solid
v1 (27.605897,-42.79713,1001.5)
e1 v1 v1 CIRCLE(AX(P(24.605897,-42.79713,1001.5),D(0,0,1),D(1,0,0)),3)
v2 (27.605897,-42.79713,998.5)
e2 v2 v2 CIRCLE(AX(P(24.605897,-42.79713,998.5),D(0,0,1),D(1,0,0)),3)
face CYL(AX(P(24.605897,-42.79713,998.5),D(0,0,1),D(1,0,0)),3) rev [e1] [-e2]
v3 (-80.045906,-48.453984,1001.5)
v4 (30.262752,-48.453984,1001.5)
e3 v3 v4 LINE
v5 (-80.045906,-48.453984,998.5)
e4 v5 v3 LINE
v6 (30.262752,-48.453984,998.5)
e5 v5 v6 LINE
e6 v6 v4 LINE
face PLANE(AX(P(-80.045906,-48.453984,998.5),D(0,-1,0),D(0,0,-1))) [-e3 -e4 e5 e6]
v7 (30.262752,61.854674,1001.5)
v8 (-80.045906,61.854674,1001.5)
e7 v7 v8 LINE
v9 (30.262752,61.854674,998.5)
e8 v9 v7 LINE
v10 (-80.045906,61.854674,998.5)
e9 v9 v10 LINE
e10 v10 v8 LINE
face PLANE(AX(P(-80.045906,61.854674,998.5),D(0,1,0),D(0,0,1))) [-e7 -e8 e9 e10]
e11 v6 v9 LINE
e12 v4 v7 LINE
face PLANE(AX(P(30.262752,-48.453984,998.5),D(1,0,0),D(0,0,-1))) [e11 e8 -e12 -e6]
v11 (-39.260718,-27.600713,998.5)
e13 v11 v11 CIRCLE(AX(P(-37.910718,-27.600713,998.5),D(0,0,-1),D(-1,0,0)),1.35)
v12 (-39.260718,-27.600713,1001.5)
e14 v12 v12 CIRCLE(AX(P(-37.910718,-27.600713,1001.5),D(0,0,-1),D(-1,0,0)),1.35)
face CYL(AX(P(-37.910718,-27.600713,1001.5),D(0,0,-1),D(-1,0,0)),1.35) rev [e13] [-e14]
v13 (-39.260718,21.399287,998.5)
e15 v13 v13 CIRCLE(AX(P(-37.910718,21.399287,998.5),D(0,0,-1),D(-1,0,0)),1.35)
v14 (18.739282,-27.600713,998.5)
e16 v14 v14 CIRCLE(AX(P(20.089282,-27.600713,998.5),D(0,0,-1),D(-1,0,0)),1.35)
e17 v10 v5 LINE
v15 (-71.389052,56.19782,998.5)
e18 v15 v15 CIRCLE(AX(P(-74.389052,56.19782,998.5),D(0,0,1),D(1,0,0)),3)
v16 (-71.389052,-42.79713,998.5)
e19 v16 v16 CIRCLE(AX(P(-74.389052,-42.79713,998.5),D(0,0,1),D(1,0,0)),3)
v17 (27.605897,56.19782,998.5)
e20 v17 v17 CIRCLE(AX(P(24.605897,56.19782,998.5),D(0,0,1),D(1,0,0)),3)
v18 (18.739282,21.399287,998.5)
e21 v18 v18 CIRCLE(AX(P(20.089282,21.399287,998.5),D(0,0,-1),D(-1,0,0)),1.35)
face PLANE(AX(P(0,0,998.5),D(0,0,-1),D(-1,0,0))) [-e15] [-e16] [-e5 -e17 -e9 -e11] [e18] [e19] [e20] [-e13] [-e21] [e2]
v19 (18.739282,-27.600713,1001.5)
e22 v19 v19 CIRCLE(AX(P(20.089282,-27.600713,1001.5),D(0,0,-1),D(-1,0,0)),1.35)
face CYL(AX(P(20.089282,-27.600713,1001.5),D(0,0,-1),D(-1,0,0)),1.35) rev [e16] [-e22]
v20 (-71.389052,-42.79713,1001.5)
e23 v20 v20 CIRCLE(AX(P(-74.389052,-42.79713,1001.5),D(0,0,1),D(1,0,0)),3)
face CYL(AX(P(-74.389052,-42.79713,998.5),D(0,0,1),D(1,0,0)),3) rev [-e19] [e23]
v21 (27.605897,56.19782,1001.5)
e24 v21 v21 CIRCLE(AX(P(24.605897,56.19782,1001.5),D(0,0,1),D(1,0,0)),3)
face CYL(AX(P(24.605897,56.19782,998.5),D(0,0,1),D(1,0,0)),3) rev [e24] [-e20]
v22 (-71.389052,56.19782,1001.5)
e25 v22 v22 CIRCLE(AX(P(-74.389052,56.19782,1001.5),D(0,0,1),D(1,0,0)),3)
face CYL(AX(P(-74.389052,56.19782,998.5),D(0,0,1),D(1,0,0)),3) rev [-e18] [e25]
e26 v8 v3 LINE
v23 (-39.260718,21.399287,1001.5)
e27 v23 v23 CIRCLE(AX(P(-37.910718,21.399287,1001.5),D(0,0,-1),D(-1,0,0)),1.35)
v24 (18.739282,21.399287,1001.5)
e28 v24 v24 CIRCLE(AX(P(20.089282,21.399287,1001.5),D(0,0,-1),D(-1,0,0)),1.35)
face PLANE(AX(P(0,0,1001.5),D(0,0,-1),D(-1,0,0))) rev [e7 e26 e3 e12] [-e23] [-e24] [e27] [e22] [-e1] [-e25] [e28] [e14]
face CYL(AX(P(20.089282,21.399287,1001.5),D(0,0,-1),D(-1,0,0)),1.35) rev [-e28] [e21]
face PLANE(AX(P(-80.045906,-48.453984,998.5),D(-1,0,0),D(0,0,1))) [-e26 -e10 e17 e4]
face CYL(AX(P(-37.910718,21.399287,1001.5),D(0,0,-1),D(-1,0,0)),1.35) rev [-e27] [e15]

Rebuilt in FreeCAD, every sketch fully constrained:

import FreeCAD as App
import Part
import Sketcher
from FreeCAD import Vector


def add_polygon(sketch, points):
    """Adds a closed chain of lines whose ends are joined by coincident constraints."""
    first, n = sketch.GeometryCount, len(points)
    for a, b in zip(points, points[1:] + points[:1]):
        sketch.addGeometry(Part.LineSegment(App.Vector(*a, 0), App.Vector(*b, 0)), False)
    for i in range(n):
        sketch.addConstraint(Sketcher.Constraint("Coincident", first + i, 2, first + (i + 1) % n, 1))

doc = App.newDocument("Part")
body = doc.addObject("PartDesign::Body", "Body")

sketch1 = doc.addObject("Sketcher::SketchObject", "Sketch")
body.addObject(sketch1)
sketch1.AttachmentSupport = (doc.XY_Plane, [""])
sketch1.MapMode = "FlatFace"
sketch1.AttachmentOffset = App.Placement(Vector(0, 0, 1001.5), App.Rotation())
add_polygon(sketch1, [(-80, 61.9), (-80, -48.5), (30.3, -48.5), (30.3, 61.9)])
sketch1.addGeometry(Part.Circle(Vector(-74.4, -42.8, 0), Vector(0, 0, 1), 3), False)
sketch1.addGeometry(Part.Circle(Vector(24.6, -42.8, 0), Vector(0, 0, 1), 3), False)
sketch1.addGeometry(Part.Circle(Vector(-74.4, 56.2, 0), Vector(0, 0, 1), 3), False)
sketch1.addGeometry(Part.Circle(Vector(24.6, 56.2, 0), Vector(0, 0, 1), 3), False)
sketch1.addConstraint([
    Sketcher.Constraint("Vertical", 0),
    Sketcher.Constraint("Horizontal", 1),
    Sketcher.Constraint("Vertical", 2),
    Sketcher.Constraint("Horizontal", 3),
    Sketcher.Constraint("Equal", 4, 5),
    Sketcher.Constraint("Equal", 5, 6),
    Sketcher.Constraint("Equal", 6, 7),
    Sketcher.Constraint("Horizontal", 4, 3, 5, 3),
    Sketcher.Constraint("Horizontal", 6, 3, 7, 3),
    Sketcher.Constraint("Vertical", 4, 3, 6, 3),
    Sketcher.Constraint("Vertical", 5, 3, 7, 3),
    Sketcher.Constraint("Equal", 3, 0),
    Sketcher.Constraint("Diameter", 4, 6.0),
    Sketcher.Constraint("DistanceX", 1, 1, 1, 2, 110.308658),
    Sketcher.Constraint("DistanceX", 4, 3, -1, 1, 74.389052),
    Sketcher.Constraint("DistanceY", 4, 3, -1, 1, 42.79713),
    Sketcher.Constraint("DistanceY", -1, 1, 6, 3, 56.19782),
    Sketcher.Constraint("DistanceX", -1, 1, 1, 2, 30.262752),
    Sketcher.Constraint("DistanceX", 4, 3, 5, 3, 98.994949),
    Sketcher.Constraint("DistanceY", 0, 2, -1, 1, 48.453984),
])
pad1 = doc.addObject("PartDesign::Pad", "Pad")
body.addObject(pad1)
pad1.Profile = sketch1
pad1.Length = 3
pad1.Reversed = True

sketch2 = doc.addObject("Sketcher::SketchObject", "Sketch001")
body.addObject(sketch2)
sketch2.AttachmentSupport = (doc.XY_Plane, [""])
sketch2.MapMode = "FlatFace"
sketch2.AttachmentOffset = App.Placement(Vector(0, 0, 998.5), App.Rotation())
sketch2.addGeometry([
    Part.Circle(Vector(-37.9, 21.4, 0), Vector(0, 0, 1), 1.4),
    Part.Circle(Vector(-37.9, -27.6, 0), Vector(0, 0, 1), 1.4),
    Part.Circle(Vector(20.1, -27.6, 0), Vector(0, 0, 1), 1.4),
    Part.Circle(Vector(20.1, 21.4, 0), Vector(0, 0, 1), 1.4),
], False)
sketch2.addConstraint([
    Sketcher.Constraint("Equal", 0, 1),
    Sketcher.Constraint("Equal", 1, 2),
    Sketcher.Constraint("Equal", 2, 3),
    Sketcher.Constraint("Horizontal", 1, 3, 2, 3),
    Sketcher.Constraint("Horizontal", 0, 3, 3, 3),
    Sketcher.Constraint("Vertical", 0, 3, 1, 3),
    Sketcher.Constraint("Vertical", 2, 3, 3, 3),
    Sketcher.Constraint("Diameter", 0, 2.7),
    Sketcher.Constraint("DistanceY", 1, 3, 0, 3, 49.0),
    Sketcher.Constraint("DistanceX", 1, 3, 2, 3, 58.0),
    Sketcher.Constraint("DistanceX", 0, 3, -1, 1, 37.910718),
    Sketcher.Constraint("DistanceY", -1, 1, 0, 3, 21.399287),
])
pocket1 = doc.addObject("PartDesign::Pocket", "Pocket")
body.addObject(pocket1)
pocket1.Profile = sketch2
pocket1.Type = "ThroughAll"
pocket1.Reversed = True

doc.recompute()
